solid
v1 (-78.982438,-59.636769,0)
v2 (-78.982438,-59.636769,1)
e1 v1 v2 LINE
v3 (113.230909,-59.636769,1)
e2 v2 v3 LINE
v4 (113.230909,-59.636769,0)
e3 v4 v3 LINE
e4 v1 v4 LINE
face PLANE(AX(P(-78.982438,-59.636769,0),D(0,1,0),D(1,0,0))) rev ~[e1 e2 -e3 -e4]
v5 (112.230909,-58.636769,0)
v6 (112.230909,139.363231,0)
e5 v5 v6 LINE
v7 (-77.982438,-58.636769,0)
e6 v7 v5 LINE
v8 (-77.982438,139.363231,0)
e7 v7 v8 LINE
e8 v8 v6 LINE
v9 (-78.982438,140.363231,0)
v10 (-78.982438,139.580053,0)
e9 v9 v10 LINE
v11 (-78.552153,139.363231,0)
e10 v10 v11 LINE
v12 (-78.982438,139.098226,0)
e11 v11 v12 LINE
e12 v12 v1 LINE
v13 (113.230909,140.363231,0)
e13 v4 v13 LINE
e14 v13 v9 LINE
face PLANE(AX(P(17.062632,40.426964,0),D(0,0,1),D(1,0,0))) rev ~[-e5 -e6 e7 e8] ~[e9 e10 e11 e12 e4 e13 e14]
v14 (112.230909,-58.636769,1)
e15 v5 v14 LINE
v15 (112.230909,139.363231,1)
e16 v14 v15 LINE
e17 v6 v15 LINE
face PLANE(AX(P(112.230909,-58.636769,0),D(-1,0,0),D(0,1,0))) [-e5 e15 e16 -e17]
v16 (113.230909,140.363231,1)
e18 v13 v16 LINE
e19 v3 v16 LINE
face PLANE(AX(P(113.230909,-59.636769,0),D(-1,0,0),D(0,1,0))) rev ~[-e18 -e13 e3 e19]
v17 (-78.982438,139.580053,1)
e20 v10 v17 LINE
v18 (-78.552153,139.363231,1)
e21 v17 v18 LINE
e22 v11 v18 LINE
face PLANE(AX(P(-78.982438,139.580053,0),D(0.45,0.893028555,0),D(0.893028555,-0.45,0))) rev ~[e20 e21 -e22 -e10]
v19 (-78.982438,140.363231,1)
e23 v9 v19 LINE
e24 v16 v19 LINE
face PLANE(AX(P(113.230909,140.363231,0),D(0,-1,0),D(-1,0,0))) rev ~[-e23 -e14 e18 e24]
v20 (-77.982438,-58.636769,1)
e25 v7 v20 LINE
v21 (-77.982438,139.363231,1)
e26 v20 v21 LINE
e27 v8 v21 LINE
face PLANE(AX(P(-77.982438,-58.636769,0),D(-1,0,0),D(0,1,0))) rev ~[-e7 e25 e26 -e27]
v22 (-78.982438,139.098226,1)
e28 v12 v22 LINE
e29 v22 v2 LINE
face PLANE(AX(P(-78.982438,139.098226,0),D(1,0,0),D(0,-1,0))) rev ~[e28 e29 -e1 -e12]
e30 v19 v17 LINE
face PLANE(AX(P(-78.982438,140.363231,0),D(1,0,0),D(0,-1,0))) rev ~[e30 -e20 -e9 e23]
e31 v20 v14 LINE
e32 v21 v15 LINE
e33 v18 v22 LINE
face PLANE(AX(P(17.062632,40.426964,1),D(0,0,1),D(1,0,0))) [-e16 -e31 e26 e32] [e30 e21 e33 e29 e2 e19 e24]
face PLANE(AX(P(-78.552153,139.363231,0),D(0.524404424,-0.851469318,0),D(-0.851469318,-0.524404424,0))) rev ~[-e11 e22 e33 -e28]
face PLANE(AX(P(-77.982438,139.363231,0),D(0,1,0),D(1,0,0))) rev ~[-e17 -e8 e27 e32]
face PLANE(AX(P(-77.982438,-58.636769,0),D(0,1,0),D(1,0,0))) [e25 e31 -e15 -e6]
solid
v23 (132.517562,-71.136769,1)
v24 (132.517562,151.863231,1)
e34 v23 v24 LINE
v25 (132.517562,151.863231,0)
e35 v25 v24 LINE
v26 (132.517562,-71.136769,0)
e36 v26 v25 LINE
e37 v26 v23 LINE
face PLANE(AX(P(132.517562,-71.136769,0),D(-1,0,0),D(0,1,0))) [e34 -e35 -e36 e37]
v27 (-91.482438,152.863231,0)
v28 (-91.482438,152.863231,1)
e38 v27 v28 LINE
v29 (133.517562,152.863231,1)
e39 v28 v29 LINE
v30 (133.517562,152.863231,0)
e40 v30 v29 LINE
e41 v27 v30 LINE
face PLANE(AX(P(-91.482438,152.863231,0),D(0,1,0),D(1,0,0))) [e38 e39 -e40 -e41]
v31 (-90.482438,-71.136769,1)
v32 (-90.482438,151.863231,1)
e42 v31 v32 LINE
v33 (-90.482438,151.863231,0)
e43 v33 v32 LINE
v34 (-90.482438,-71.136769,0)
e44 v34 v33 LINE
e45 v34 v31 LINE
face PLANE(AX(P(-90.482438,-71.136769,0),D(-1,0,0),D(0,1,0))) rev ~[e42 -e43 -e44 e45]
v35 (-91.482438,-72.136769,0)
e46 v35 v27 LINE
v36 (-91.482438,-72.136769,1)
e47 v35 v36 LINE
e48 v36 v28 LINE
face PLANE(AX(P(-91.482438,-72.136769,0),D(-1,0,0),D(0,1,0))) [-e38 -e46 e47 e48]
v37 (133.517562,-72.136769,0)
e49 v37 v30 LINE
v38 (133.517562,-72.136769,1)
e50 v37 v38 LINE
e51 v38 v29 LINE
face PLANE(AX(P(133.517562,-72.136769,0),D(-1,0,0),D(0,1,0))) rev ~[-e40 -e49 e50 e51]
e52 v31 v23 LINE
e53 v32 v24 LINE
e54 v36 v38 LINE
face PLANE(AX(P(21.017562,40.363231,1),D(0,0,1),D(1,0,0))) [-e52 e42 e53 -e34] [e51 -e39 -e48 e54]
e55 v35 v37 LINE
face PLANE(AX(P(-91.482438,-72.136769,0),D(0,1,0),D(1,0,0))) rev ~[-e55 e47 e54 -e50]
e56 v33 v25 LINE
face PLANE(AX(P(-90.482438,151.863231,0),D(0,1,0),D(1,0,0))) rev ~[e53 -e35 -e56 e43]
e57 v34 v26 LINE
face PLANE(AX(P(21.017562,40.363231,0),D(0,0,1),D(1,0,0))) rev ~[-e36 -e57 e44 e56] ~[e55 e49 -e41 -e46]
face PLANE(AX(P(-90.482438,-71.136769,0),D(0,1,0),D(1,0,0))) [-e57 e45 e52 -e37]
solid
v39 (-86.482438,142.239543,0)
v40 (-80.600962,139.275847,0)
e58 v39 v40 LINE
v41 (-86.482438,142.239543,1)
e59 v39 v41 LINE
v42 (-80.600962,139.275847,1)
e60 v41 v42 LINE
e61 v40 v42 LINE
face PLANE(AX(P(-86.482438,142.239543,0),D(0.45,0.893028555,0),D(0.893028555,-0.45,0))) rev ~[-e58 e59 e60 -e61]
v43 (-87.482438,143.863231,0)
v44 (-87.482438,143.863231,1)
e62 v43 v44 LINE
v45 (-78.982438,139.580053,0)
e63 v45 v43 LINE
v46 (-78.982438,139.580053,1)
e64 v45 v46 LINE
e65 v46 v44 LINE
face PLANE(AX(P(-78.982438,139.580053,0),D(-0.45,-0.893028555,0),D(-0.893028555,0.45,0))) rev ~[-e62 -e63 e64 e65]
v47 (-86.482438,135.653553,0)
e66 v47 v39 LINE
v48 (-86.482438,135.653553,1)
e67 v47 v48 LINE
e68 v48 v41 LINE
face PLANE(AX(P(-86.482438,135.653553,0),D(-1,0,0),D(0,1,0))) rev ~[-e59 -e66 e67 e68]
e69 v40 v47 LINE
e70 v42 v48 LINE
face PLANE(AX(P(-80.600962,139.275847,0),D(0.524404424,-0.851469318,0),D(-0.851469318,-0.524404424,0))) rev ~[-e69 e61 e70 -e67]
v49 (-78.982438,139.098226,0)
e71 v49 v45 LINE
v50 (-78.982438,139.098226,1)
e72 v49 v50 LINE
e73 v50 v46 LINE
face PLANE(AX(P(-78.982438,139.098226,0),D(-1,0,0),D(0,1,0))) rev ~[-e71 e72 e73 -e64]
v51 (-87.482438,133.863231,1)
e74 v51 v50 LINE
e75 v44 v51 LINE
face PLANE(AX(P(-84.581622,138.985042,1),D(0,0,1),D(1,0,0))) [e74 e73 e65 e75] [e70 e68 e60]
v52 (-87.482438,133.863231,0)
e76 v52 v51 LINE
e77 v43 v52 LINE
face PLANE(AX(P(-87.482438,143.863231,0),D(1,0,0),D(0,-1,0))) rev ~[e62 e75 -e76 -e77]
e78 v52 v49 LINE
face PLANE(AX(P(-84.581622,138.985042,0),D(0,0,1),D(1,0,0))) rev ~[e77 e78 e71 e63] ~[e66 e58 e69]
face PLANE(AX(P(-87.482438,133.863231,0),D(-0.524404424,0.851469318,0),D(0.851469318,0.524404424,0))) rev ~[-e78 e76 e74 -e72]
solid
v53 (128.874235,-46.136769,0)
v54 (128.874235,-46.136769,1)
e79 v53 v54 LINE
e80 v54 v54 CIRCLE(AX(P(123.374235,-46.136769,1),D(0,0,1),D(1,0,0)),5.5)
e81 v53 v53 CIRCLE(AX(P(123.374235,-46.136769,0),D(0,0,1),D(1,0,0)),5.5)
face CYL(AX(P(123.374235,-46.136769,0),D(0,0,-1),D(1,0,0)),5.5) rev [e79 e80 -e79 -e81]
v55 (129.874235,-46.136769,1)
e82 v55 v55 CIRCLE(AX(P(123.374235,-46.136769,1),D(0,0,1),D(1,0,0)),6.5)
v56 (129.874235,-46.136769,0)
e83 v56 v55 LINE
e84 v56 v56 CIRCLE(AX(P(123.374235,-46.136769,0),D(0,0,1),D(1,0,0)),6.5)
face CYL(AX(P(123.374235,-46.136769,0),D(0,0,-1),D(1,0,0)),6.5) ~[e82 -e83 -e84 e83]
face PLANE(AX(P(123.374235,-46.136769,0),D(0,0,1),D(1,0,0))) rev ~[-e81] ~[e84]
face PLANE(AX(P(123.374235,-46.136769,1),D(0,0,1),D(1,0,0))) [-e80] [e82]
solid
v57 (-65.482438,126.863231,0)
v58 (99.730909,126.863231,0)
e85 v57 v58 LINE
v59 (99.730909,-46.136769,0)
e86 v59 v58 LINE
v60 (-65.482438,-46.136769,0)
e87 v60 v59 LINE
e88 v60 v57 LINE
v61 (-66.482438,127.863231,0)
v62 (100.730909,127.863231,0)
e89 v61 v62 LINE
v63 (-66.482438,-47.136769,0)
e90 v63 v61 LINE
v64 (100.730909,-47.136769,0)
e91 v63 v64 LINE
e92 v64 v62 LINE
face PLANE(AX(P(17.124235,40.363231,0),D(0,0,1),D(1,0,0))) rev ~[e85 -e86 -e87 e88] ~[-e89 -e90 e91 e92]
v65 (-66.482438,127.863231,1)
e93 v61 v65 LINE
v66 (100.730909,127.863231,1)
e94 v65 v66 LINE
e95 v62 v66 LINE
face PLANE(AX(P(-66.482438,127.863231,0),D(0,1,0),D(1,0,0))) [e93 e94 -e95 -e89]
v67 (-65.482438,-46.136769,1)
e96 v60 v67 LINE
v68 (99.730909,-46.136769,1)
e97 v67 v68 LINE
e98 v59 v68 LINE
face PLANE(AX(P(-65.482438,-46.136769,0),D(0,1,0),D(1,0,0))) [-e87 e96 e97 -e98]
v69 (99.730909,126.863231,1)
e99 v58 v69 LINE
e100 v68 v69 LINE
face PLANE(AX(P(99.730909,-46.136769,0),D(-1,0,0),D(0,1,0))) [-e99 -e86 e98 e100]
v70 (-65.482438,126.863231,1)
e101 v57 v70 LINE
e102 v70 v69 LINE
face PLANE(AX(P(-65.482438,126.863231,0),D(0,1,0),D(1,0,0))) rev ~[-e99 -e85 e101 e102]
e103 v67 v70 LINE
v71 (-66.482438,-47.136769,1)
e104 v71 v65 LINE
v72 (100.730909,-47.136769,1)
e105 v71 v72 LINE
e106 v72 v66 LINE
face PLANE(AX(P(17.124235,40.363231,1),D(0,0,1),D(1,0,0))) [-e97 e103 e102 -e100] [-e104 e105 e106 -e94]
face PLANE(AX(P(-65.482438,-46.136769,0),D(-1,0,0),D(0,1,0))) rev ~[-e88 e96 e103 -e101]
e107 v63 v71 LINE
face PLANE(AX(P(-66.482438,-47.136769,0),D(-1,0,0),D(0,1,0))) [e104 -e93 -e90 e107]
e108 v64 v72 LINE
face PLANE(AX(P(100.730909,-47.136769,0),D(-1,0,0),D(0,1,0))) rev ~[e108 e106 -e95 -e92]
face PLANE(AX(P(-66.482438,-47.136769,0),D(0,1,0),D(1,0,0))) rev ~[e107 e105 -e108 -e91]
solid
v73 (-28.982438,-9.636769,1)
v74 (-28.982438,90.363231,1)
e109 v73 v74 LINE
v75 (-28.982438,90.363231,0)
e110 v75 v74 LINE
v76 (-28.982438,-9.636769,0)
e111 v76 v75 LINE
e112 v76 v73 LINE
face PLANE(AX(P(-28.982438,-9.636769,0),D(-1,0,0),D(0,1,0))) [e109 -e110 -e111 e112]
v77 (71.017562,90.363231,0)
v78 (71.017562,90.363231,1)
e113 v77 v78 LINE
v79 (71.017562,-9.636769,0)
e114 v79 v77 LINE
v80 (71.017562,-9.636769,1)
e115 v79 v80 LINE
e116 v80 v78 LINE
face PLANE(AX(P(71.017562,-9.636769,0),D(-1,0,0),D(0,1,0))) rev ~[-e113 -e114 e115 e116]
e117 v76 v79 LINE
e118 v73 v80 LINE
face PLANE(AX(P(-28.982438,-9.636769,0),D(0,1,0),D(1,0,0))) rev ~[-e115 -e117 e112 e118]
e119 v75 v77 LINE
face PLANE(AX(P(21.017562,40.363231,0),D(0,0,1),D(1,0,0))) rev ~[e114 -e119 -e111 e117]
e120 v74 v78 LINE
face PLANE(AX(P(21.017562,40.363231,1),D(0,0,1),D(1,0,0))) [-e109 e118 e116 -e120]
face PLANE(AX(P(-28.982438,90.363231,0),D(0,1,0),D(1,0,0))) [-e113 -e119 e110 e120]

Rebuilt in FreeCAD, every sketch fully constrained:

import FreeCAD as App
import Part
import Sketcher
from FreeCAD import Vector
Q = App.Units.Quantity

doc = App.newDocument("Part")
params = doc.addObject("Spreadsheet::Sheet", "Params")
for row, (alias, value) in enumerate([
    ("sketch1_width", "225 mm"),
    ("sketch1_width2", "223 mm"),
    ("pad1_length", "1 mm"),
    ("sketch2_height", "200 mm"),
    ("sketch2_height2", "198 mm"),
    ("pad2_length", "1 mm"),
    ("sketch3_height", "175 mm"),
    ("sketch3_height2", "173 mm"),
    ("pad3_length", "1 mm"),
    ("sketch4_diameter", "13 mm"),
    ("sketch4_diameter2", "11 mm"),
    ("pad4_length", "1 mm"),
    ("sketch5_width", "100 mm"),
    ("pad5_length", "1 mm"),
    ("sketch6_height", "10 mm"),
    ("pad6_length", "1 mm"),
], start=1):
    params.set(f"A{row}", alias)
    params.set(f"B{row}", "=" + value)
    params.setAlias(f"B{row}", alias)

body = doc.addObject("PartDesign::Body", "Body")

# Sketch on XY plane
sketch1 = body.newObject("Sketcher::SketchObject", "Sketch")
sketch1.AttachmentSupport = (doc.getObject("XY_Plane"), [""])
sketch1.MapMode = "FlatFace"
sketch1.addGeometry([
    Part.LineSegment(Vector(-91.482438, 152.863231, 0), Vector(-91.482438, -72.136769, 0)),  # 0
    Part.LineSegment(Vector(-91.482438, -72.136769, 0), Vector(133.517562, -72.136769, 0)),  # 1
    Part.LineSegment(Vector(133.517562, -72.136769, 0), Vector(133.517562, 152.863231, 0)),  # 2
    Part.LineSegment(Vector(133.517562, 152.863231, 0), Vector(-91.482438, 152.863231, 0)),  # 3
    Part.LineSegment(Vector(132.517562, -71.136769, 0), Vector(-90.482438, -71.136769, 0)),  # 4
    Part.LineSegment(Vector(-90.482438, -71.136769, 0), Vector(-90.482438, 151.863231, 0)),  # 5
    Part.LineSegment(Vector(-90.482438, 151.863231, 0), Vector(132.517562, 151.863231, 0)),  # 6
    Part.LineSegment(Vector(132.517562, 151.863231, 0), Vector(132.517562, -71.136769, 0)),  # 7
], False)
sketch1.addConstraint([
    Sketcher.Constraint("Coincident", 0, 2, 1, 1),
    Sketcher.Constraint("Coincident", 1, 2, 2, 1),
    Sketcher.Constraint("Coincident", 2, 2, 3, 1),
    Sketcher.Constraint("Coincident", 3, 2, 0, 1),
    Sketcher.Constraint("Coincident", 4, 2, 5, 1),
    Sketcher.Constraint("Coincident", 5, 2, 6, 1),
    Sketcher.Constraint("Coincident", 6, 2, 7, 1),
    Sketcher.Constraint("Coincident", 7, 2, 4, 1),
    Sketcher.Constraint("Vertical", 0),
    Sketcher.Constraint("Horizontal", 1),
    Sketcher.Constraint("Vertical", 2),
    Sketcher.Constraint("Horizontal", 3),
    Sketcher.Constraint("Horizontal", 4),
    Sketcher.Constraint("Vertical", 5),
    Sketcher.Constraint("Horizontal", 6),
    Sketcher.Constraint("Vertical", 7),
    Sketcher.Constraint("Equal", 3, 0),
    Sketcher.Constraint("Equal", 6, 5),
    Sketcher.Constraint("DistanceX", 1, 1, 1, 2, Q("225 mm")),
    Sketcher.Constraint("DistanceX", 4, 2, 4, 1, Q("223 mm")),
    Sketcher.Constraint("DistanceX", 0, 2, 4, 2, Q("1 mm")),
    Sketcher.Constraint("DistanceY", 0, 2, 4, 2, Q("1 mm")),
    Sketcher.Constraint("DistanceX", 0, 2, -1, 1, Q("91.482438 mm")),
    Sketcher.Constraint("DistanceY", 0, 2, -1, 1, Q("72.136769 mm")),
])
sketch1.setExpression("Constraints[18]", "Params.sketch1_width")
sketch1.setExpression("Constraints[19]", "Params.sketch1_width2")
pad1 = body.newObject("PartDesign::Pad", "Pad")
pad1.Profile = sketch1
pad1.setExpression("Length", "Params.pad1_length")
body2 = doc.addObject("PartDesign::Body", "Body001")

# Sketch on XY plane
sketch2 = body2.newObject("Sketcher::SketchObject", "Sketch001")
sketch2.AttachmentSupport = (doc.getObject("XY_Plane001"), [""])
sketch2.MapMode = "FlatFace"
sketch2.addGeometry([
    Part.LineSegment(Vector(113.230909, 140.363231, 0), Vector(-78.982438, 140.363231, 0)),  # 0
    Part.LineSegment(Vector(-78.982438, 140.363231, 0), Vector(-78.982438, 139.580053, 0)),  # 1
    Part.LineSegment(Vector(-78.982438, 139.580053, 0), Vector(-78.552153, 139.363231, 0)),  # 2
    Part.LineSegment(Vector(-78.552153, 139.363231, 0), Vector(-78.982438, 139.098226, 0)),  # 3
    Part.LineSegment(Vector(-78.982438, 139.098226, 0), Vector(-78.982438, -59.636769, 0)),  # 4
    Part.LineSegment(Vector(-78.982438, -59.636769, 0), Vector(113.230909, -59.636769, 0)),  # 5
    Part.LineSegment(Vector(113.230909, -59.636769, 0), Vector(113.230909, 140.363231, 0)),  # 6
    Part.LineSegment(Vector(112.230909, -58.636769, 0), Vector(-77.982438, -58.636769, 0)),  # 7
    Part.LineSegment(Vector(-77.982438, -58.636769, 0), Vector(-77.982438, 139.363231, 0)),  # 8
    Part.LineSegment(Vector(-77.982438, 139.363231, 0), Vector(112.230909, 139.363231, 0)),  # 9
    Part.LineSegment(Vector(112.230909, 139.363231, 0), Vector(112.230909, -58.636769, 0)),  # 10
], False)
sketch2.addConstraint([
    Sketcher.Constraint("Coincident", 0, 2, 1, 1),
    Sketcher.Constraint("Coincident", 1, 2, 2, 1),
    Sketcher.Constraint("Coincident", 2, 2, 3, 1),
    Sketcher.Constraint("Coincident", 3, 2, 4, 1),
    Sketcher.Constraint("Coincident", 4, 2, 5, 1),
    Sketcher.Constraint("Coincident", 5, 2, 6, 1),
    Sketcher.Constraint("Coincident", 6, 2, 0, 1),
    Sketcher.Constraint("Coincident", 7, 2, 8, 1),
    Sketcher.Constraint("Coincident", 8, 2, 9, 1),
    Sketcher.Constraint("Coincident", 9, 2, 10, 1),
    Sketcher.Constraint("Coincident", 10, 2, 7, 1),
    Sketcher.Constraint("Horizontal", 0),
    Sketcher.Constraint("Vertical", 1),
    Sketcher.Constraint("Vertical", 4),
    Sketcher.Constraint("Horizontal", 5),
    Sketcher.Constraint("Vertical", 6),
    Sketcher.Constraint("Horizontal", 7),
    Sketcher.Constraint("Vertical", 8),
    Sketcher.Constraint("Horizontal", 9),
    Sketcher.Constraint("Vertical", 10),
    Sketcher.Constraint("Horizontal", 2, 2, 8, 2),
    Sketcher.Constraint("Vertical", 1, 2, 3, 2),
    Sketcher.Constraint("DistanceY", 6, 1, 6, 2, Q("200 mm")),
    Sketcher.Constraint("DistanceY", 8, 1, 8, 2, Q("198 mm")),
    Sketcher.Constraint("DistanceY", 2, 2, 0, 2, Q("1 mm")),
    Sketcher.Constraint("DistanceX", 4, 2, 7, 2, Q("1 mm")),
    Sketcher.Constraint("DistanceX", 9, 2, 6, 2, Q("1 mm")),
    Sketcher.Constraint("DistanceX", 0, 2, 0, 1, Q("192.213347 mm")),
    Sketcher.Constraint("DistanceY", 1, 2, 1, 1, Q("0.783178 mm")),
    Sketcher.Constraint("DistanceY", 4, 2, 4, 1, Q("198.734995 mm")),
    Sketcher.Constraint("DistanceX", 0, 2, -1, 1, Q("78.982438 mm")),
    Sketcher.Constraint("DistanceY", -1, 1, 0, 2, Q("140.363231 mm")),
    Sketcher.Constraint("DistanceX", 2, 2, 5, 2, Q("191.783061 mm")),
])
sketch2.setExpression("Constraints[22]", "Params.sketch2_height")
sketch2.setExpression("Constraints[23]", "Params.sketch2_height2")
pad2 = body2.newObject("PartDesign::Pad", "Pad001")
pad2.Profile = sketch2
pad2.setExpression("Length", "Params.pad2_length")
body3 = doc.addObject("PartDesign::Body", "Body002")

# Sketch on XY plane
sketch3 = body3.newObject("Sketcher::SketchObject", "Sketch002")
sketch3.AttachmentSupport = (doc.getObject("XY_Plane002"), [""])
sketch3.MapMode = "FlatFace"
sketch3.addGeometry([
    Part.LineSegment(Vector(-66.482438, 127.863231, 0), Vector(-66.482438, -47.136769, 0)),  # 0
    Part.LineSegment(Vector(-66.482438, -47.136769, 0), Vector(100.730909, -47.136769, 0)),  # 1
    Part.LineSegment(Vector(100.730909, -47.136769, 0), Vector(100.730909, 127.863231, 0)),  # 2
    Part.LineSegment(Vector(100.730909, 127.863231, 0), Vector(-66.482438, 127.863231, 0)),  # 3
    Part.LineSegment(Vector(99.730909, -46.136769, 0), Vector(-65.482438, -46.136769, 0)),  # 4
    Part.LineSegment(Vector(-65.482438, -46.136769, 0), Vector(-65.482438, 126.863231, 0)),  # 5
    Part.LineSegment(Vector(-65.482438, 126.863231, 0), Vector(99.730909, 126.863231, 0)),  # 6
    Part.LineSegment(Vector(99.730909, 126.863231, 0), Vector(99.730909, -46.136769, 0)),  # 7
], False)
sketch3.addConstraint([
    Sketcher.Constraint("Coincident", 0, 2, 1, 1),
    Sketcher.Constraint("Coincident", 1, 2, 2, 1),
    Sketcher.Constraint("Coincident", 2, 2, 3, 1),
    Sketcher.Constraint("Coincident", 3, 2, 0, 1),
    Sketcher.Constraint("Coincident", 4, 2, 5, 1),
    Sketcher.Constraint("Coincident", 5, 2, 6, 1),
    Sketcher.Constraint("Coincident", 6, 2, 7, 1),
    Sketcher.Constraint("Coincident", 7, 2, 4, 1),
    Sketcher.Constraint("Vertical", 0),
    Sketcher.Constraint("Horizontal", 1),
    Sketcher.Constraint("Vertical", 2),
    Sketcher.Constraint("Horizontal", 3),
    Sketcher.Constraint("Horizontal", 4),
    Sketcher.Constraint("Vertical", 5),
    Sketcher.Constraint("Horizontal", 6),
    Sketcher.Constraint("Vertical", 7),
    Sketcher.Constraint("DistanceY", 0, 2, 0, 1, Q("175 mm")),
    Sketcher.Constraint("DistanceY", 5, 1, 5, 2, Q("173 mm")),
    Sketcher.Constraint("DistanceX", 0, 2, 4, 2, Q("1 mm")),
    Sketcher.Constraint("DistanceY", 0, 2, 4, 2, Q("1 mm")),
    Sketcher.Constraint("DistanceX", 6, 2, 2, 2, Q("1 mm")),
    Sketcher.Constraint("DistanceX", 1, 1, 1, 2, Q("167.213347 mm")),
    Sketcher.Constraint("DistanceX", 0, 2, -1, 1, Q("66.482438 mm")),
    Sketcher.Constraint("DistanceY", 0, 2, -1, 1, Q("47.136769 mm")),
])
sketch3.setExpression("Constraints[16]", "Params.sketch3_height")
sketch3.setExpression("Constraints[17]", "Params.sketch3_height2")
pad3 = body3.newObject("PartDesign::Pad", "Pad002")
pad3.Profile = sketch3
pad3.setExpression("Length", "Params.pad3_length")
body4 = doc.addObject("PartDesign::Body", "Body003")

# Sketch on XY plane
sketch4 = body4.newObject("Sketcher::SketchObject", "Sketch003")
sketch4.AttachmentSupport = (doc.getObject("XY_Plane003"), [""])
sketch4.MapMode = "FlatFace"
sketch4.addGeometry([
    Part.Circle(Vector(123.374235, -46.136769, 0), Vector(0, 0, 1), 6.5),
    Part.Circle(Vector(123.374235, -46.136769, 0), Vector(0, 0, 1), 5.5),
], False)
sketch4.addConstraint([
    Sketcher.Constraint("Coincident", 1, 3, 0, 3),
    Sketcher.Constraint("Diameter", 0, Q("13 mm")),
    Sketcher.Constraint("Diameter", 1, Q("11 mm")),
    Sketcher.Constraint("DistanceY", 0, 3, -1, 1, Q("46.136769 mm")),
    Sketcher.Constraint("DistanceX", -1, 1, 0, 3, Q("123.374235 mm")),
])
sketch4.setExpression("Constraints[1]", "Params.sketch4_diameter")
sketch4.setExpression("Constraints[2]", "Params.sketch4_diameter2")
pad4 = body4.newObject("PartDesign::Pad", "Pad003")
pad4.Profile = sketch4
pad4.setExpression("Length", "Params.pad4_length")
body5 = doc.addObject("PartDesign::Body", "Body004")

# Sketch on XY plane
sketch5 = body5.newObject("Sketcher::SketchObject", "Sketch004")
sketch5.AttachmentSupport = (doc.getObject("XY_Plane004"), [""])
sketch5.MapMode = "FlatFace"
sketch5.addGeometry([
    Part.LineSegment(Vector(-28.982438, 90.363231, 0), Vector(-28.982438, -9.636769, 0)),
    Part.LineSegment(Vector(-28.982438, -9.636769, 0), Vector(71.017562, -9.636769, 0)),
    Part.LineSegment(Vector(71.017562, -9.636769, 0), Vector(71.017562, 90.363231, 0)),
    Part.LineSegment(Vector(71.017562, 90.363231, 0), Vector(-28.982438, 90.363231, 0)),
], False)
sketch5.addConstraint([
    Sketcher.Constraint("Coincident", 0, 2, 1, 1),
    Sketcher.Constraint("Coincident", 1, 2, 2, 1),
    Sketcher.Constraint("Coincident", 2, 2, 3, 1),
    Sketcher.Constraint("Coincident", 3, 2, 0, 1),
    Sketcher.Constraint("Vertical", 0),
    Sketcher.Constraint("Horizontal", 1),
    Sketcher.Constraint("Vertical", 2),
    Sketcher.Constraint("Horizontal", 3),
    Sketcher.Constraint("Equal", 3, 0),
    Sketcher.Constraint("DistanceX", 1, 1, 1, 2, Q("100 mm")),
    Sketcher.Constraint("DistanceX", 0, 2, -1, 1, Q("28.982438 mm")),
    Sketcher.Constraint("DistanceY", 0, 2, -1, 1, Q("9.636769 mm")),
])
sketch5.setExpression("Constraints[9]", "Params.sketch5_width")
pad5 = body5.newObject("PartDesign::Pad", "Pad004")
pad5.Profile = sketch5
pad5.setExpression("Length", "Params.pad5_length")
body6 = doc.addObject("PartDesign::Body", "Body005")

# Sketch on XY plane
sketch6 = body6.newObject("Sketcher::SketchObject", "Sketch005")
sketch6.AttachmentSupport = (doc.getObject("XY_Plane005"), [""])
sketch6.MapMode = "FlatFace"
sketch6.addGeometry([
    Part.LineSegment(Vector(-78.982438, 139.098226, 0), Vector(-78.982438, 139.580053, 0)),  # 0
    Part.LineSegment(Vector(-78.982438, 139.580053, 0), Vector(-87.482438, 143.863231, 0)),  # 1
    Part.LineSegment(Vector(-87.482438, 143.863231, 0), Vector(-87.482438, 133.863231, 0)),  # 2
    Part.LineSegment(Vector(-87.482438, 133.863231, 0), Vector(-78.982438, 139.098226, 0)),  # 3
    Part.LineSegment(Vector(-80.600962, 139.275847, 0), Vector(-86.482438, 135.653553, 0)),  # 4
    Part.LineSegment(Vector(-86.482438, 135.653553, 0), Vector(-86.482438, 142.239543, 0)),  # 5
    Part.LineSegment(Vector(-86.482438, 142.239543, 0), Vector(-80.600962, 139.275847, 0)),  # 6
], False)
sketch6.addConstraint([
    Sketcher.Constraint("Coincident", 0, 2, 1, 1),
    Sketcher.Constraint("Coincident", 1, 2, 2, 1),
    Sketcher.Constraint("Coincident", 2, 2, 3, 1),
    Sketcher.Constraint("Coincident", 3, 2, 0, 1),
    Sketcher.Constraint("Coincident", 4, 2, 5, 1),
    Sketcher.Constraint("Coincident", 5, 2, 6, 1),
    Sketcher.Constraint("Coincident", 6, 2, 4, 1),
    Sketcher.Constraint("Vertical", 0),
    Sketcher.Constraint("Vertical", 2),
    Sketcher.Constraint("Vertical", 5),
    Sketcher.Constraint("Parallel", 3, 4),
    Sketcher.Constraint("Parallel", 1, 6),
    Sketcher.Constraint("DistanceY", 2, 2, 2, 1, Q("10 mm")),
    Sketcher.Constraint("DistanceX", 2, 2, 4, 2, Q("1 mm")),
    Sketcher.Constraint("DistanceX", 1, 2, 0, 2, Q("8.5 mm")),
    Sketcher.Constraint("DistanceY", 5, 1, 5, 2, Q("6.58599 mm")),
    Sketcher.Constraint("DistanceY", 4, 2, 0, 2, Q("3.9265 mm")),
    Sketcher.Constraint("Distance", 6, Q("6.58599 mm")),
    Sketcher.Constraint("DistanceY", 0, 1, 0, 2, Q("0.481827 mm")),
    Sketcher.Constraint("DistanceX", 0, 2, -1, 1, Q("78.982438 mm")),
    Sketcher.Constraint("DistanceY", -1, 1, 1, 2, Q("143.863231 mm")),
])
sketch6.setExpression("Constraints[12]", "Params.sketch6_height")
pad6 = body6.newObject("PartDesign::Pad", "Pad005")
pad6.Profile = sketch6
pad6.setExpression("Length", "Params.pad6_length")

doc.recompute()
